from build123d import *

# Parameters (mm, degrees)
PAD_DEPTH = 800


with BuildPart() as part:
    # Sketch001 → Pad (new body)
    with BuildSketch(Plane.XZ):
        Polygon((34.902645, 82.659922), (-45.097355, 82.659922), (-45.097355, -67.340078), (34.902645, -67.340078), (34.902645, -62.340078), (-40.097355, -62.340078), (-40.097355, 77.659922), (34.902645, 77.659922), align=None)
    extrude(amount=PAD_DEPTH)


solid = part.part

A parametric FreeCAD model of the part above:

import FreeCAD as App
import Part
import Sketcher
Q = App.Units.Quantity


def add_polygon(sketch, points):
    """Adds a closed chain of lines whose ends are joined by coincident constraints."""
    first, n = sketch.GeometryCount, len(points)
    for a, b in zip(points, points[1:] + points[:1]):
        sketch.addGeometry(Part.LineSegment(App.Vector(*a, 0), App.Vector(*b, 0)), False)
    for i in range(n):
        sketch.addConstraint(Sketcher.Constraint("Coincident", first + i, 2, first + (i + 1) % n, 1))

doc = App.newDocument("Part")
body = doc.addObject("PartDesign::Body", "Body")

# Sketch on XZ plane
sketch1 = doc.addObject("Sketcher::SketchObject", "Sketch")
body.addObject(sketch1)
sketch1.AttachmentSupport = (doc.XZ_Plane, [""])
sketch1.MapMode = "FlatFace"
add_polygon(sketch1, [(34.902645, 82.659922), (-45.097355, 82.659922), (-45.097355, -67.340078), (34.902645, -67.340078), (34.902645, -62.340078), (-40.097355, -62.340078), (-40.097355, 77.659922), (34.902645, 77.659922)])  # lines 0-7
sketch1.addConstraint([
    Sketcher.Constraint("Horizontal", 0),
    Sketcher.Constraint("Vertical", 1),
    Sketcher.Constraint("Horizontal", 2),
    Sketcher.Constraint("Vertical", 3),
    Sketcher.Constraint("Horizontal", 4),
    Sketcher.Constraint("Vertical", 5),
    Sketcher.Constraint("Horizontal", 6),
    Sketcher.Constraint("Vertical", 7),
    Sketcher.Constraint("Vertical", 3, 2, 6, 2),
    Sketcher.Constraint("Equal", 3, 7),
    Sketcher.Constraint("DistanceX", 0, 2, 0, 1, Q("80 mm")),
    Sketcher.Constraint("DistanceX", 4, 2, 4, 1, Q("75 mm")),
    Sketcher.Constraint("DistanceY", 1, 2, 1, 1, Q("150 mm")),
    Sketcher.Constraint("DistanceY", 3, 1, 3, 2, Q("5 mm")),
    Sketcher.Constraint("DistanceY", -1, 1, 0, 2, Q("82.659922 mm")),
    Sketcher.Constraint("DistanceX", 0, 2, -1, 1, Q("45.097355 mm")),
])
pad1 = doc.addObject("PartDesign::Pad", "Pad")
body.addObject(pad1)
pad1.Profile = sketch1
pad1.Length = 800

doc.recompute()
